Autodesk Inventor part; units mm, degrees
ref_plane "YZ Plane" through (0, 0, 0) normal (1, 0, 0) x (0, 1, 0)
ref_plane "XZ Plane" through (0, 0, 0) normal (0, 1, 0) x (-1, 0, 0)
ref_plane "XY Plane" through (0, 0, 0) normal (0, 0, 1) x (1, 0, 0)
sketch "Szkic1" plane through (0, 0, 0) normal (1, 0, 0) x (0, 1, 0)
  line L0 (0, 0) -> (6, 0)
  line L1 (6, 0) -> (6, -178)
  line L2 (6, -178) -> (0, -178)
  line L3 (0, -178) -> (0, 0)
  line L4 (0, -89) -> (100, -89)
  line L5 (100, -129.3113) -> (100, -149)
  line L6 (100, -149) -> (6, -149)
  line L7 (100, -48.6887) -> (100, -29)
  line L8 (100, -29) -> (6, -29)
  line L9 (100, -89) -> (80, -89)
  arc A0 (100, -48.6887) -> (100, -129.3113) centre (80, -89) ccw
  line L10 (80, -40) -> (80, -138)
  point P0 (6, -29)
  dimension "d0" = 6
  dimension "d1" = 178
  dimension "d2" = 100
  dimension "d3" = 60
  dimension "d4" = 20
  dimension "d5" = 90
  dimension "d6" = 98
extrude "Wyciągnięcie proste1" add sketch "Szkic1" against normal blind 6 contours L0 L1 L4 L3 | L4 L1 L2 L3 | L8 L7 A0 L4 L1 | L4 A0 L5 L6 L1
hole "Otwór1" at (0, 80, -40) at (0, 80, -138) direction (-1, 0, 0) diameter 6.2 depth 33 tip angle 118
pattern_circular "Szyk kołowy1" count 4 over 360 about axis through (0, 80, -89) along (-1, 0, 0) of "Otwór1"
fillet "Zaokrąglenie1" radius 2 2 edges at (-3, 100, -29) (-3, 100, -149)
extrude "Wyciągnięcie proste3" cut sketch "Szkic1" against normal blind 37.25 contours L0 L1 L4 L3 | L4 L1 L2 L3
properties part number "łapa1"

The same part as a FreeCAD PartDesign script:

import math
import FreeCAD as App
import Part
import Sketcher

V = App.Vector


def edges_at(feature, points):
    """Names of the edges that pass closest to the given points."""
    edges = feature.Shape.Edges
    near = lambda p: min(range(len(edges)), key=lambda i: edges[i].distToShape(Part.Vertex(*p))[0])
    return sorted({f"Edge{near(p) + 1}" for p in points})


def add_polygon(sketch, points):
    """Adds a closed chain of lines whose ends are joined by coincident constraints."""
    first, n = sketch.GeometryCount, len(points)
    for a, b in zip(points, points[1:] + points[:1]):
        sketch.addGeometry(Part.LineSegment(App.Vector(*a, 0), App.Vector(*b, 0)), False)
    for i in range(n):
        sketch.addConstraint(Sketcher.Constraint("Coincident", first + i, 2, first + (i + 1) % n, 1))

doc = App.newDocument("Part")
params = doc.addObject("Spreadsheet::Sheet", "Params")
for row, (alias, value) in enumerate([
    ("sketch1_radius", "45 mm"),
    ("sketch1_width", "6 mm"),
    ("sketch1_height", "178 mm"),
    ("pad1_length", "6 mm"),
    ("sketch2_diameter", "6.2 mm"),
    ("hole_diameter", "6.2 mm"),
    ("hole_depth", "33 mm"),
    ("fillet_radius", "2 mm"),
    ("sketch3_width", "6 mm"),
    ("sketch3_height", "178 mm"),
    ("pocket1_length", "37.25 mm"),
], start=1):
    params.set(f"A{row}", alias)
    params.set(f"B{row}", "=" + value)
    params.setAlias(f"B{row}", alias)

body = doc.addObject("PartDesign::Body", "Body")

sketch1 = body.newObject("Sketcher::SketchObject", "Sketch")
sketch1.AttachmentSupport = (doc.getObject("YZ_Plane"), [""])
sketch1.MapMode = "FlatFace"
sketch1.addGeometry([
    Part.LineSegment(V(6, 0, 0), V(0, 0, 0)),
    Part.LineSegment(V(0, 0, 0), V(0, -178, 0)),
    Part.LineSegment(V(0, -178, 0), V(6, -178, 0)),
    Part.LineSegment(V(6, -178, 0), V(6, -149, 0)),
    Part.LineSegment(V(6, -149, 0), V(100, -149, 0)),
    Part.LineSegment(V(100, -149, 0), V(100, -129, 0)),
    Part.ArcOfCircle(Part.Circle(V(80, -89, 0), V(0, 0, 1), 45), math.radians(64), math.radians(296)),
    Part.LineSegment(V(100, -49, 0), V(100, -29, 0)),
    Part.LineSegment(V(100, -29, 0), V(6, -29, 0)),
    Part.LineSegment(V(6, -29, 0), V(6, 0, 0)),
], False)
sketch1.addConstraint([
    Sketcher.Constraint("Coincident", 0, 2, 1, 1),
    Sketcher.Constraint("Coincident", 1, 2, 2, 1),
    Sketcher.Constraint("Coincident", 2, 2, 3, 1),
    Sketcher.Constraint("Coincident", 3, 2, 4, 1),
    Sketcher.Constraint("Coincident", 4, 2, 5, 1),
    Sketcher.Constraint("Coincident", 5, 2, 6, 2),
    Sketcher.Constraint("Coincident", 6, 1, 7, 1),
    Sketcher.Constraint("Coincident", 7, 2, 8, 1),
    Sketcher.Constraint("Coincident", 8, 2, 9, 1),
    Sketcher.Constraint("Coincident", 9, 2, 0, 1),
    Sketcher.Constraint("Horizontal", 0),
    Sketcher.Constraint("Vertical", 1),
    Sketcher.Constraint("Horizontal", 2),
    Sketcher.Constraint("Vertical", 3),
    Sketcher.Constraint("Horizontal", 4),
    Sketcher.Constraint("Vertical", 5),
    Sketcher.Constraint("Vertical", 7),
    Sketcher.Constraint("Horizontal", 8),
    Sketcher.Constraint("Vertical", 9),
    Sketcher.Constraint("Coincident", 0, 2, -1, 1),
    Sketcher.Constraint("Vertical", 5, 2, 6, 1),
    Sketcher.Constraint("Vertical", 3, 2, 8, 2),
    Sketcher.Constraint("Equal", 5, 7),
    Sketcher.Constraint("Equal", 3, 9),
    Sketcher.Constraint("Radius", 6, 45.0),
    Sketcher.Constraint("DistanceX", 0, 2, 0, 1, 6.0),
    Sketcher.Constraint("DistanceY", 1, 2, 1, 1, 178.0),
    Sketcher.Constraint("DistanceX", -1, 1, 4, 2, 100.0),
    Sketcher.Constraint("DistanceY", 3, 2, 6, 3, 60.0),
    Sketcher.Constraint("DistanceX", 6, 3, 4, 2, 20.0),
])
sketch1.setExpression("Constraints[24]", "Params.sketch1_radius")
sketch1.setExpression("Constraints[25]", "Params.sketch1_width")
sketch1.setExpression("Constraints[26]", "Params.sketch1_height")
pad1 = body.newObject("PartDesign::Pad", "Pad")
pad1.Profile = sketch1
pad1.setExpression("Length", "Params.pad1_length")
pad1.Reversed = True

sketch2 = body.newObject("Sketcher::SketchObject", "Sketch001")
sketch2.AttachmentSupport = (doc.getObject("YZ_Plane"), [""])
sketch2.MapMode = "FlatFace"
sketch2.addGeometry([
    Part.Circle(V(80, -40, 0), V(0, 0, 1), 3.1),
    Part.Circle(V(80, -138, 0), V(0, 0, 1), 3.1),
], False)
sketch2.addConstraint([
    Sketcher.Constraint("Equal", 0, 1),
    Sketcher.Constraint("Vertical", 0, 3, 1, 3),
    Sketcher.Constraint("Diameter", 0, 6.2),
    Sketcher.Constraint("DistanceX", -1, 1, 0, 3, 80.0),
    Sketcher.Constraint("DistanceY", 0, 3, -1, 1, 40.0),
    Sketcher.Constraint("DistanceY", 1, 3, -1, 1, 138.0),
])
sketch2.setExpression("Constraints[2]", "Params.sketch2_diameter")
doc.recompute()
hole = body.newObject("PartDesign::Hole", "Hole")
hole.Profile = sketch2
hole.ThreadType = "None"
hole.setExpression("Diameter", "Params.hole_diameter")
hole.DepthType = "Dimension"
hole.setExpression("Depth", "Params.hole_depth")
hole.DrillPoint = "Angled"
hole.DrillPointAngle = 118
doc.recompute()

datumline = body.newObject("PartDesign::Line", "DatumLine")
datumline.Placement = App.Placement(V(0, 80, -89), App.Rotation(V(0, 0, 1), V(1, 0, 0)))
polarpattern = body.newObject("PartDesign::PolarPattern", "PolarPattern")
polarpattern.Originals = [hole]
polarpattern.Axis = (datumline, [""])
polarpattern.Angle = 360
polarpattern.Occurrences = 4
body.Tip = polarpattern
doc.recompute()

fillet = body.newObject("PartDesign::Fillet", "Fillet")
fillet.Base = (polarpattern, edges_at(polarpattern, [(-3, 100, -29), (-3, 100, -149)]))
fillet.setExpression("Radius", "Params.fillet_radius")

sketch3 = body.newObject("Sketcher::SketchObject", "Sketch002")
sketch3.AttachmentSupport = (doc.getObject("YZ_Plane"), [""])
sketch3.MapMode = "FlatFace"
add_polygon(sketch3, [(6, 0), (0, 0), (0, -178), (6, -178)])
sketch3.addConstraint([
    Sketcher.Constraint("Horizontal", 0),
    Sketcher.Constraint("Vertical", 1),
    Sketcher.Constraint("Horizontal", 2),
    Sketcher.Constraint("Vertical", 3),
    Sketcher.Constraint("Coincident", 0, 2, -1, 1),
    Sketcher.Constraint("DistanceX", 0, 2, 0, 1, 6.0),
    Sketcher.Constraint("DistanceY", 1, 2, 1, 1, 178.0),
])
sketch3.setExpression("Constraints[9]", "Params.sketch3_width")
sketch3.setExpression("Constraints[10]", "Params.sketch3_height")
pocket1 = body.newObject("PartDesign::Pocket", "Pocket")
pocket1.Profile = sketch3
pocket1.setExpression("Length", "Params.pocket1_length")

doc.recompute()
